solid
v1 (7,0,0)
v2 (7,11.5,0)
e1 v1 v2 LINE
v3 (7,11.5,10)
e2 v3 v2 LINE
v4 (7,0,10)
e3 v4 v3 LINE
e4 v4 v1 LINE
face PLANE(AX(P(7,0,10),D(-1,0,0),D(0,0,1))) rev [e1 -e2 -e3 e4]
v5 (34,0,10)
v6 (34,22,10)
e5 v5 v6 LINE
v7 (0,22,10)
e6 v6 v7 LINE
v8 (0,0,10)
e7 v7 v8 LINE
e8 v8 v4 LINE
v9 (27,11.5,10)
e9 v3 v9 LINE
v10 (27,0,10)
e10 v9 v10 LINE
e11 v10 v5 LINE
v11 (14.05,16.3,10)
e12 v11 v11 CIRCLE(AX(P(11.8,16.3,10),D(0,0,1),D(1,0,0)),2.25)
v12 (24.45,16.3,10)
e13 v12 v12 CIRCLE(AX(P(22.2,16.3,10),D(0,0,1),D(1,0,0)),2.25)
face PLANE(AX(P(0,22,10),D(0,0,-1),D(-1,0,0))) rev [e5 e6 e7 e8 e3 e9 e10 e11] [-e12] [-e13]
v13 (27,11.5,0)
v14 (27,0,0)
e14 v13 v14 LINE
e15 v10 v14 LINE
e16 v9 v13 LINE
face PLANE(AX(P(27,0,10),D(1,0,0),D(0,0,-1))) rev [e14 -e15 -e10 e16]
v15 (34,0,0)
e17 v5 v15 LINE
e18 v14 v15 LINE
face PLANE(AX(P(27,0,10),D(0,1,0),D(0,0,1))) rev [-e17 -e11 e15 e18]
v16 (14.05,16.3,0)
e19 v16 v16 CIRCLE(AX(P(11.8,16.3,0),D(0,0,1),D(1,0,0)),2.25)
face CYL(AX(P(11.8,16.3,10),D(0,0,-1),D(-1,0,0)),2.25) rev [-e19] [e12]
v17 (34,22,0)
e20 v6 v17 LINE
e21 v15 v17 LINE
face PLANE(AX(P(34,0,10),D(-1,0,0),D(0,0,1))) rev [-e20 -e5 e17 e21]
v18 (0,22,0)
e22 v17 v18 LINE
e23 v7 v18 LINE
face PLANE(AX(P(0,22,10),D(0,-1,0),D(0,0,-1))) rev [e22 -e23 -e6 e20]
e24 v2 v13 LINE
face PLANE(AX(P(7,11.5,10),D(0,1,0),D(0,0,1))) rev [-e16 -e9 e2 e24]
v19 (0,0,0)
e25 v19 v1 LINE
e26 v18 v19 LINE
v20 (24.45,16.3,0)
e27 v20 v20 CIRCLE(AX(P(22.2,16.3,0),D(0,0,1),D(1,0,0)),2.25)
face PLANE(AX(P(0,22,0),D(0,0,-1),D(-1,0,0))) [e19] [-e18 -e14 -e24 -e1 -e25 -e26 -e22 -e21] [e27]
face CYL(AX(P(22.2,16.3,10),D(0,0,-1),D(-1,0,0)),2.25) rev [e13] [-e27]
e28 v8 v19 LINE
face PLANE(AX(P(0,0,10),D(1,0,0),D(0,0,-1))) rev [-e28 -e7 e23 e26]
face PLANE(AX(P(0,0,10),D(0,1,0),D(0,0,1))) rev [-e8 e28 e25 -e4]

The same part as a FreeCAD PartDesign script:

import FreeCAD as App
import Part
import Sketcher
from FreeCAD import Vector

doc = App.newDocument("Part")
params = doc.addObject("Spreadsheet::Sheet", "Params")
for row, (alias, value) in enumerate([
    ("sketch1_diameter", "4.5 mm"),
    ("sketch1_width", "7 mm"),
    ("sketch1_width2", "34 mm"),
    ("sketch1_height", "22 mm"),
    ("sketch1_height2", "11.5 mm"),
    ("pad1_length", "10 mm"),
], start=1):
    params.set(f"A{row}", alias)
    params.set(f"B{row}", "=" + value)
    params.setAlias(f"B{row}", alias)

body = doc.addObject("PartDesign::Body", "Body")

# Sketch on XY plane
sketch1 = body.newObject("Sketcher::SketchObject", "Sketch")
sketch1.AttachmentSupport = (doc.getObject("XY_Plane"), [""])
sketch1.MapMode = "FlatFace"
sketch1.addGeometry(Part.LineSegment(Vector(27, 0, 0), Vector(34, 0, 0)), False)
sketch1.addGeometry(Part.LineSegment(Vector(34, 0, 0), Vector(34, 22, 0)), False)
sketch1.addGeometry(Part.LineSegment(Vector(34, 22, 0), Vector(0, 22, 0)), False)
sketch1.addGeometry(Part.LineSegment(Vector(0, 22, 0), Vector(0, 0, 0)), False)
sketch1.addGeometry(Part.LineSegment(Vector(0, 0, 0), Vector(7, 0, 0)), False)
sketch1.addGeometry(Part.LineSegment(Vector(7, 0, 0), Vector(7, 11.5, 0)), False)
sketch1.addGeometry(Part.LineSegment(Vector(7, 11.5, 0), Vector(27, 11.5, 0)), False)
sketch1.addGeometry(Part.LineSegment(Vector(27, 11.5, 0), Vector(27, 0, 0)), False)
sketch1.addGeometry(Part.Circle(Vector(11.8, 16.3, 0), Vector(0, 0, 1), 2.2), False)
sketch1.addGeometry(Part.Circle(Vector(22.2, 16.3, 0), Vector(0, 0, 1), 2.2), False)
sketch1.addConstraint(Sketcher.Constraint("Coincident", 0, 2, 1, 1))
sketch1.addConstraint(Sketcher.Constraint("Coincident", 1, 2, 2, 1))
sketch1.addConstraint(Sketcher.Constraint("Coincident", 2, 2, 3, 1))
sketch1.addConstraint(Sketcher.Constraint("Coincident", 3, 2, 4, 1))
sketch1.addConstraint(Sketcher.Constraint("Coincident", 4, 2, 5, 1))
sketch1.addConstraint(Sketcher.Constraint("Coincident", 5, 2, 6, 1))
sketch1.addConstraint(Sketcher.Constraint("Coincident", 6, 2, 7, 1))
sketch1.addConstraint(Sketcher.Constraint("Coincident", 7, 2, 0, 1))
sketch1.addConstraint(Sketcher.Constraint("Horizontal", 0))
sketch1.addConstraint(Sketcher.Constraint("Vertical", 1))
sketch1.addConstraint(Sketcher.Constraint("Horizontal", 2))
sketch1.addConstraint(Sketcher.Constraint("Vertical", 3))
sketch1.addConstraint(Sketcher.Constraint("Horizontal", 4))
sketch1.addConstraint(Sketcher.Constraint("Vertical", 5))
sketch1.addConstraint(Sketcher.Constraint("Horizontal", 6))
sketch1.addConstraint(Sketcher.Constraint("Vertical", 7))
sketch1.addConstraint(Sketcher.Constraint("Coincident", 3, 2, -1, 1))
sketch1.addConstraint(Sketcher.Constraint("Equal", 8, 9))
sketch1.addConstraint(Sketcher.Constraint("PointOnObject", 0, 2, -1))
sketch1.addConstraint(Sketcher.Constraint("Horizontal", 8, 3, 9, 3))
sketch1.addConstraint(Sketcher.Constraint("Equal", 0, 4))
sketch1.addConstraint(Sketcher.Constraint("Diameter", 8, 4.5))
sketch1.addConstraint(Sketcher.Constraint("DistanceX", 0, 1, 0, 2, 7.0))
sketch1.addConstraint(Sketcher.Constraint("DistanceX", 2, 2, 2, 1, 34.0))
sketch1.addConstraint(Sketcher.Constraint("DistanceY", 1, 1, 1, 2, 22.0))
sketch1.addConstraint(Sketcher.Constraint("DistanceY", 5, 1, 5, 2, 11.5))
sketch1.addConstraint(Sketcher.Constraint("DistanceX", -1, 1, 8, 3, 11.8))
sketch1.addConstraint(Sketcher.Constraint("DistanceY", -1, 1, 8, 3, 16.3))
sketch1.addConstraint(Sketcher.Constraint("DistanceX", -1, 1, 9, 3, 22.2))
sketch1.setExpression("Constraints[21]", "Params.sketch1_diameter")
sketch1.setExpression("Constraints[22]", "Params.sketch1_width")
sketch1.setExpression("Constraints[23]", "Params.sketch1_width2")
sketch1.setExpression("Constraints[24]", "Params.sketch1_height")
sketch1.setExpression("Constraints[25]", "Params.sketch1_height2")
pad1 = body.newObject("PartDesign::Pad", "Pad")
pad1.Profile = sketch1
pad1.setExpression("Length", "Params.pad1_length")

doc.recompute()
